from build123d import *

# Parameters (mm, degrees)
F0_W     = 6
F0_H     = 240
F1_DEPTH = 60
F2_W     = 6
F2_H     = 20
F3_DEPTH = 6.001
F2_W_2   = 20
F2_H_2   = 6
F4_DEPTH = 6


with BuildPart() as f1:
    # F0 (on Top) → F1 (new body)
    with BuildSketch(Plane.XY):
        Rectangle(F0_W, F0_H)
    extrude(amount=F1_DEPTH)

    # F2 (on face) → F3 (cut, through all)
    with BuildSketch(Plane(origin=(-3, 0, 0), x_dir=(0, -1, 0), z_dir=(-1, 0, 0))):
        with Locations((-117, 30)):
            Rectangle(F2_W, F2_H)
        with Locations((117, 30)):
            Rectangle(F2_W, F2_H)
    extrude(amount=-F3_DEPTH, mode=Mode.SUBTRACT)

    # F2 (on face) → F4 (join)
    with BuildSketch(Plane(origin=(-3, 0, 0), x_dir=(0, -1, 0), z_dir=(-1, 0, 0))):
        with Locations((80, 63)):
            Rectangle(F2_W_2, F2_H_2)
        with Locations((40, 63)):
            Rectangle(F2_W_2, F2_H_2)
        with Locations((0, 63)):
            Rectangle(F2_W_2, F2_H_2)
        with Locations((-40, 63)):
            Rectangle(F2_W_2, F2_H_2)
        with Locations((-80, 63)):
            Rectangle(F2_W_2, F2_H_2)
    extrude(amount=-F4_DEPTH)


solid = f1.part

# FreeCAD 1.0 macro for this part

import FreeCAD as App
import Part
import Sketcher


def add_polygon(sketch, points):
    """Adds a closed chain of lines whose ends are joined by coincident constraints."""
    first, n = sketch.GeometryCount, len(points)
    for a, b in zip(points, points[1:] + points[:1]):
        sketch.addGeometry(Part.LineSegment(App.Vector(*a, 0), App.Vector(*b, 0)), False)
    for i in range(n):
        sketch.addConstraint(Sketcher.Constraint("Coincident", first + i, 2, first + (i + 1) % n, 1))

doc = App.newDocument("Part")
body = doc.addObject("PartDesign::Body", "Body")

sketch1 = body.newObject("Sketcher::SketchObject", "Sketch")
sketch1.AttachmentSupport = (doc.getObject("XY_Plane"), [""])
sketch1.MapMode = "FlatFace"
add_polygon(sketch1, [(-3, 120), (-3, -120), (3, -120), (3, 120)])
sketch1.addConstraint([
    Sketcher.Constraint("Vertical", 0),
    Sketcher.Constraint("Horizontal", 1),
    Sketcher.Constraint("Vertical", 2),
    Sketcher.Constraint("Horizontal", 3),
    Sketcher.Constraint("Symmetric", 0, 2, 2, 2, -1, 1),
    Sketcher.Constraint("DistanceX", 1, 1, 1, 2, 6.0),
    Sketcher.Constraint("DistanceY", 0, 2, 0, 1, 240.0),
])
pad1 = body.newObject("PartDesign::Pad", "Pad")
pad1.Profile = sketch1
pad1.Length = 60

sketch2 = body.newObject("Sketcher::SketchObject", "Sketch001")
sketch2.AttachmentSupport = (doc.getObject("YZ_Plane"), [""])
sketch2.MapMode = "FlatFace"
sketch2.AttachmentOffset = App.Placement(App.Vector(0, 0, -3), App.Rotation())
add_polygon(sketch2, [(120, 40), (120, 20), (114, 20), (114, 40)])
add_polygon(sketch2, [(-114, 40), (-114, 20), (-120, 20), (-120, 40)])
sketch2.addConstraint([
    Sketcher.Constraint("Vertical", 0),
    Sketcher.Constraint("Horizontal", 1),
    Sketcher.Constraint("Vertical", 2),
    Sketcher.Constraint("Horizontal", 3),
    Sketcher.Constraint("Vertical", 4),
    Sketcher.Constraint("Horizontal", 5),
    Sketcher.Constraint("Vertical", 6),
    Sketcher.Constraint("Horizontal", 7),
    Sketcher.Constraint("Symmetric", 1, 2, 4, 2, -2),
    Sketcher.Constraint("Symmetric", 3, 2, 6, 2, -2),
    Sketcher.Constraint("DistanceX", 1, 2, 1, 1, 6.0),
    Sketcher.Constraint("DistanceY", 0, 2, 0, 1, 20.0),
    Sketcher.Constraint("DistanceX", -1, 1, 0, 2, 120.0),
    Sketcher.Constraint("DistanceY", -1, 1, 0, 2, 20.0),
])
pocket1 = body.newObject("PartDesign::Pocket", "Pocket")
pocket1.Profile = sketch2
pocket1.Type = "ThroughAll"
pocket1.Reversed = True

sketch3 = body.newObject("Sketcher::SketchObject", "Sketch002")
sketch3.AttachmentSupport = (doc.getObject("YZ_Plane"), [""])
sketch3.MapMode = "FlatFace"
sketch3.AttachmentOffset = App.Placement(App.Vector(0, 0, -3), App.Rotation())
add_polygon(sketch3, [(-70, 66), (-70, 60), (-90, 60), (-90, 66)])
add_polygon(sketch3, [(-30, 66), (-30, 60), (-50, 60), (-50, 66)])
add_polygon(sketch3, [(10, 66), (10, 60), (-10, 60), (-10, 66)])
add_polygon(sketch3, [(50, 66), (50, 60), (30, 60), (30, 66)])
add_polygon(sketch3, [(90, 66), (90, 60), (70, 60), (70, 66)])
sketch3.addConstraint([
    Sketcher.Constraint("Vertical", 0),
    Sketcher.Constraint("Horizontal", 1),
    Sketcher.Constraint("Vertical", 2),
    Sketcher.Constraint("Horizontal", 3),
    Sketcher.Constraint("Vertical", 4),
    Sketcher.Constraint("Horizontal", 5),
    Sketcher.Constraint("Vertical", 6),
    Sketcher.Constraint("Horizontal", 7),
    Sketcher.Constraint("Vertical", 8),
    Sketcher.Constraint("Horizontal", 9),
    Sketcher.Constraint("Vertical", 10),
    Sketcher.Constraint("Horizontal", 11),
    Sketcher.Constraint("Vertical", 12),
    Sketcher.Constraint("Horizontal", 13),
    Sketcher.Constraint("Vertical", 14),
    Sketcher.Constraint("Horizontal", 15),
    Sketcher.Constraint("Vertical", 16),
    Sketcher.Constraint("Horizontal", 17),
    Sketcher.Constraint("Vertical", 18),
    Sketcher.Constraint("Horizontal", 19),
    Sketcher.Constraint("Symmetric", 5, 2, 12, 2, -2),
    Sketcher.Constraint("Symmetric", 7, 2, 14, 2, -2),
    Sketcher.Constraint("Symmetric", 1, 2, 16, 2, -2),
    Sketcher.Constraint("Symmetric", 3, 2, 18, 2, -2),
    Sketcher.Constraint("Horizontal", 1, 2, 4, 2),
    Sketcher.Constraint("Horizontal", 3, 2, 6, 2),
    Sketcher.Constraint("Horizontal", 5, 2, 8, 2),
    Sketcher.Constraint("Horizontal", 7, 2, 10, 2),
    Sketcher.Constraint("Equal", 3, 5),
    Sketcher.Constraint("Equal", 7, 9),
    Sketcher.Constraint("DistanceX", 1, 2, 1, 1, 20.0),
    Sketcher.Constraint("DistanceY", 0, 2, 0, 1, 6.0),
    Sketcher.Constraint("DistanceX", 0, 2, -1, 1, 70.0),
    Sketcher.Constraint("DistanceY", -1, 1, 0, 2, 60.0),
    Sketcher.Constraint("DistanceX", 4, 2, -1, 1, 30.0),
    Sketcher.Constraint("DistanceX", -1, 1, 8, 2, 10.0),
])
pad2 = body.newObject("PartDesign::Pad", "Pad001")
pad2.Profile = sketch3
pad2.Length = 6

doc.recompute()
